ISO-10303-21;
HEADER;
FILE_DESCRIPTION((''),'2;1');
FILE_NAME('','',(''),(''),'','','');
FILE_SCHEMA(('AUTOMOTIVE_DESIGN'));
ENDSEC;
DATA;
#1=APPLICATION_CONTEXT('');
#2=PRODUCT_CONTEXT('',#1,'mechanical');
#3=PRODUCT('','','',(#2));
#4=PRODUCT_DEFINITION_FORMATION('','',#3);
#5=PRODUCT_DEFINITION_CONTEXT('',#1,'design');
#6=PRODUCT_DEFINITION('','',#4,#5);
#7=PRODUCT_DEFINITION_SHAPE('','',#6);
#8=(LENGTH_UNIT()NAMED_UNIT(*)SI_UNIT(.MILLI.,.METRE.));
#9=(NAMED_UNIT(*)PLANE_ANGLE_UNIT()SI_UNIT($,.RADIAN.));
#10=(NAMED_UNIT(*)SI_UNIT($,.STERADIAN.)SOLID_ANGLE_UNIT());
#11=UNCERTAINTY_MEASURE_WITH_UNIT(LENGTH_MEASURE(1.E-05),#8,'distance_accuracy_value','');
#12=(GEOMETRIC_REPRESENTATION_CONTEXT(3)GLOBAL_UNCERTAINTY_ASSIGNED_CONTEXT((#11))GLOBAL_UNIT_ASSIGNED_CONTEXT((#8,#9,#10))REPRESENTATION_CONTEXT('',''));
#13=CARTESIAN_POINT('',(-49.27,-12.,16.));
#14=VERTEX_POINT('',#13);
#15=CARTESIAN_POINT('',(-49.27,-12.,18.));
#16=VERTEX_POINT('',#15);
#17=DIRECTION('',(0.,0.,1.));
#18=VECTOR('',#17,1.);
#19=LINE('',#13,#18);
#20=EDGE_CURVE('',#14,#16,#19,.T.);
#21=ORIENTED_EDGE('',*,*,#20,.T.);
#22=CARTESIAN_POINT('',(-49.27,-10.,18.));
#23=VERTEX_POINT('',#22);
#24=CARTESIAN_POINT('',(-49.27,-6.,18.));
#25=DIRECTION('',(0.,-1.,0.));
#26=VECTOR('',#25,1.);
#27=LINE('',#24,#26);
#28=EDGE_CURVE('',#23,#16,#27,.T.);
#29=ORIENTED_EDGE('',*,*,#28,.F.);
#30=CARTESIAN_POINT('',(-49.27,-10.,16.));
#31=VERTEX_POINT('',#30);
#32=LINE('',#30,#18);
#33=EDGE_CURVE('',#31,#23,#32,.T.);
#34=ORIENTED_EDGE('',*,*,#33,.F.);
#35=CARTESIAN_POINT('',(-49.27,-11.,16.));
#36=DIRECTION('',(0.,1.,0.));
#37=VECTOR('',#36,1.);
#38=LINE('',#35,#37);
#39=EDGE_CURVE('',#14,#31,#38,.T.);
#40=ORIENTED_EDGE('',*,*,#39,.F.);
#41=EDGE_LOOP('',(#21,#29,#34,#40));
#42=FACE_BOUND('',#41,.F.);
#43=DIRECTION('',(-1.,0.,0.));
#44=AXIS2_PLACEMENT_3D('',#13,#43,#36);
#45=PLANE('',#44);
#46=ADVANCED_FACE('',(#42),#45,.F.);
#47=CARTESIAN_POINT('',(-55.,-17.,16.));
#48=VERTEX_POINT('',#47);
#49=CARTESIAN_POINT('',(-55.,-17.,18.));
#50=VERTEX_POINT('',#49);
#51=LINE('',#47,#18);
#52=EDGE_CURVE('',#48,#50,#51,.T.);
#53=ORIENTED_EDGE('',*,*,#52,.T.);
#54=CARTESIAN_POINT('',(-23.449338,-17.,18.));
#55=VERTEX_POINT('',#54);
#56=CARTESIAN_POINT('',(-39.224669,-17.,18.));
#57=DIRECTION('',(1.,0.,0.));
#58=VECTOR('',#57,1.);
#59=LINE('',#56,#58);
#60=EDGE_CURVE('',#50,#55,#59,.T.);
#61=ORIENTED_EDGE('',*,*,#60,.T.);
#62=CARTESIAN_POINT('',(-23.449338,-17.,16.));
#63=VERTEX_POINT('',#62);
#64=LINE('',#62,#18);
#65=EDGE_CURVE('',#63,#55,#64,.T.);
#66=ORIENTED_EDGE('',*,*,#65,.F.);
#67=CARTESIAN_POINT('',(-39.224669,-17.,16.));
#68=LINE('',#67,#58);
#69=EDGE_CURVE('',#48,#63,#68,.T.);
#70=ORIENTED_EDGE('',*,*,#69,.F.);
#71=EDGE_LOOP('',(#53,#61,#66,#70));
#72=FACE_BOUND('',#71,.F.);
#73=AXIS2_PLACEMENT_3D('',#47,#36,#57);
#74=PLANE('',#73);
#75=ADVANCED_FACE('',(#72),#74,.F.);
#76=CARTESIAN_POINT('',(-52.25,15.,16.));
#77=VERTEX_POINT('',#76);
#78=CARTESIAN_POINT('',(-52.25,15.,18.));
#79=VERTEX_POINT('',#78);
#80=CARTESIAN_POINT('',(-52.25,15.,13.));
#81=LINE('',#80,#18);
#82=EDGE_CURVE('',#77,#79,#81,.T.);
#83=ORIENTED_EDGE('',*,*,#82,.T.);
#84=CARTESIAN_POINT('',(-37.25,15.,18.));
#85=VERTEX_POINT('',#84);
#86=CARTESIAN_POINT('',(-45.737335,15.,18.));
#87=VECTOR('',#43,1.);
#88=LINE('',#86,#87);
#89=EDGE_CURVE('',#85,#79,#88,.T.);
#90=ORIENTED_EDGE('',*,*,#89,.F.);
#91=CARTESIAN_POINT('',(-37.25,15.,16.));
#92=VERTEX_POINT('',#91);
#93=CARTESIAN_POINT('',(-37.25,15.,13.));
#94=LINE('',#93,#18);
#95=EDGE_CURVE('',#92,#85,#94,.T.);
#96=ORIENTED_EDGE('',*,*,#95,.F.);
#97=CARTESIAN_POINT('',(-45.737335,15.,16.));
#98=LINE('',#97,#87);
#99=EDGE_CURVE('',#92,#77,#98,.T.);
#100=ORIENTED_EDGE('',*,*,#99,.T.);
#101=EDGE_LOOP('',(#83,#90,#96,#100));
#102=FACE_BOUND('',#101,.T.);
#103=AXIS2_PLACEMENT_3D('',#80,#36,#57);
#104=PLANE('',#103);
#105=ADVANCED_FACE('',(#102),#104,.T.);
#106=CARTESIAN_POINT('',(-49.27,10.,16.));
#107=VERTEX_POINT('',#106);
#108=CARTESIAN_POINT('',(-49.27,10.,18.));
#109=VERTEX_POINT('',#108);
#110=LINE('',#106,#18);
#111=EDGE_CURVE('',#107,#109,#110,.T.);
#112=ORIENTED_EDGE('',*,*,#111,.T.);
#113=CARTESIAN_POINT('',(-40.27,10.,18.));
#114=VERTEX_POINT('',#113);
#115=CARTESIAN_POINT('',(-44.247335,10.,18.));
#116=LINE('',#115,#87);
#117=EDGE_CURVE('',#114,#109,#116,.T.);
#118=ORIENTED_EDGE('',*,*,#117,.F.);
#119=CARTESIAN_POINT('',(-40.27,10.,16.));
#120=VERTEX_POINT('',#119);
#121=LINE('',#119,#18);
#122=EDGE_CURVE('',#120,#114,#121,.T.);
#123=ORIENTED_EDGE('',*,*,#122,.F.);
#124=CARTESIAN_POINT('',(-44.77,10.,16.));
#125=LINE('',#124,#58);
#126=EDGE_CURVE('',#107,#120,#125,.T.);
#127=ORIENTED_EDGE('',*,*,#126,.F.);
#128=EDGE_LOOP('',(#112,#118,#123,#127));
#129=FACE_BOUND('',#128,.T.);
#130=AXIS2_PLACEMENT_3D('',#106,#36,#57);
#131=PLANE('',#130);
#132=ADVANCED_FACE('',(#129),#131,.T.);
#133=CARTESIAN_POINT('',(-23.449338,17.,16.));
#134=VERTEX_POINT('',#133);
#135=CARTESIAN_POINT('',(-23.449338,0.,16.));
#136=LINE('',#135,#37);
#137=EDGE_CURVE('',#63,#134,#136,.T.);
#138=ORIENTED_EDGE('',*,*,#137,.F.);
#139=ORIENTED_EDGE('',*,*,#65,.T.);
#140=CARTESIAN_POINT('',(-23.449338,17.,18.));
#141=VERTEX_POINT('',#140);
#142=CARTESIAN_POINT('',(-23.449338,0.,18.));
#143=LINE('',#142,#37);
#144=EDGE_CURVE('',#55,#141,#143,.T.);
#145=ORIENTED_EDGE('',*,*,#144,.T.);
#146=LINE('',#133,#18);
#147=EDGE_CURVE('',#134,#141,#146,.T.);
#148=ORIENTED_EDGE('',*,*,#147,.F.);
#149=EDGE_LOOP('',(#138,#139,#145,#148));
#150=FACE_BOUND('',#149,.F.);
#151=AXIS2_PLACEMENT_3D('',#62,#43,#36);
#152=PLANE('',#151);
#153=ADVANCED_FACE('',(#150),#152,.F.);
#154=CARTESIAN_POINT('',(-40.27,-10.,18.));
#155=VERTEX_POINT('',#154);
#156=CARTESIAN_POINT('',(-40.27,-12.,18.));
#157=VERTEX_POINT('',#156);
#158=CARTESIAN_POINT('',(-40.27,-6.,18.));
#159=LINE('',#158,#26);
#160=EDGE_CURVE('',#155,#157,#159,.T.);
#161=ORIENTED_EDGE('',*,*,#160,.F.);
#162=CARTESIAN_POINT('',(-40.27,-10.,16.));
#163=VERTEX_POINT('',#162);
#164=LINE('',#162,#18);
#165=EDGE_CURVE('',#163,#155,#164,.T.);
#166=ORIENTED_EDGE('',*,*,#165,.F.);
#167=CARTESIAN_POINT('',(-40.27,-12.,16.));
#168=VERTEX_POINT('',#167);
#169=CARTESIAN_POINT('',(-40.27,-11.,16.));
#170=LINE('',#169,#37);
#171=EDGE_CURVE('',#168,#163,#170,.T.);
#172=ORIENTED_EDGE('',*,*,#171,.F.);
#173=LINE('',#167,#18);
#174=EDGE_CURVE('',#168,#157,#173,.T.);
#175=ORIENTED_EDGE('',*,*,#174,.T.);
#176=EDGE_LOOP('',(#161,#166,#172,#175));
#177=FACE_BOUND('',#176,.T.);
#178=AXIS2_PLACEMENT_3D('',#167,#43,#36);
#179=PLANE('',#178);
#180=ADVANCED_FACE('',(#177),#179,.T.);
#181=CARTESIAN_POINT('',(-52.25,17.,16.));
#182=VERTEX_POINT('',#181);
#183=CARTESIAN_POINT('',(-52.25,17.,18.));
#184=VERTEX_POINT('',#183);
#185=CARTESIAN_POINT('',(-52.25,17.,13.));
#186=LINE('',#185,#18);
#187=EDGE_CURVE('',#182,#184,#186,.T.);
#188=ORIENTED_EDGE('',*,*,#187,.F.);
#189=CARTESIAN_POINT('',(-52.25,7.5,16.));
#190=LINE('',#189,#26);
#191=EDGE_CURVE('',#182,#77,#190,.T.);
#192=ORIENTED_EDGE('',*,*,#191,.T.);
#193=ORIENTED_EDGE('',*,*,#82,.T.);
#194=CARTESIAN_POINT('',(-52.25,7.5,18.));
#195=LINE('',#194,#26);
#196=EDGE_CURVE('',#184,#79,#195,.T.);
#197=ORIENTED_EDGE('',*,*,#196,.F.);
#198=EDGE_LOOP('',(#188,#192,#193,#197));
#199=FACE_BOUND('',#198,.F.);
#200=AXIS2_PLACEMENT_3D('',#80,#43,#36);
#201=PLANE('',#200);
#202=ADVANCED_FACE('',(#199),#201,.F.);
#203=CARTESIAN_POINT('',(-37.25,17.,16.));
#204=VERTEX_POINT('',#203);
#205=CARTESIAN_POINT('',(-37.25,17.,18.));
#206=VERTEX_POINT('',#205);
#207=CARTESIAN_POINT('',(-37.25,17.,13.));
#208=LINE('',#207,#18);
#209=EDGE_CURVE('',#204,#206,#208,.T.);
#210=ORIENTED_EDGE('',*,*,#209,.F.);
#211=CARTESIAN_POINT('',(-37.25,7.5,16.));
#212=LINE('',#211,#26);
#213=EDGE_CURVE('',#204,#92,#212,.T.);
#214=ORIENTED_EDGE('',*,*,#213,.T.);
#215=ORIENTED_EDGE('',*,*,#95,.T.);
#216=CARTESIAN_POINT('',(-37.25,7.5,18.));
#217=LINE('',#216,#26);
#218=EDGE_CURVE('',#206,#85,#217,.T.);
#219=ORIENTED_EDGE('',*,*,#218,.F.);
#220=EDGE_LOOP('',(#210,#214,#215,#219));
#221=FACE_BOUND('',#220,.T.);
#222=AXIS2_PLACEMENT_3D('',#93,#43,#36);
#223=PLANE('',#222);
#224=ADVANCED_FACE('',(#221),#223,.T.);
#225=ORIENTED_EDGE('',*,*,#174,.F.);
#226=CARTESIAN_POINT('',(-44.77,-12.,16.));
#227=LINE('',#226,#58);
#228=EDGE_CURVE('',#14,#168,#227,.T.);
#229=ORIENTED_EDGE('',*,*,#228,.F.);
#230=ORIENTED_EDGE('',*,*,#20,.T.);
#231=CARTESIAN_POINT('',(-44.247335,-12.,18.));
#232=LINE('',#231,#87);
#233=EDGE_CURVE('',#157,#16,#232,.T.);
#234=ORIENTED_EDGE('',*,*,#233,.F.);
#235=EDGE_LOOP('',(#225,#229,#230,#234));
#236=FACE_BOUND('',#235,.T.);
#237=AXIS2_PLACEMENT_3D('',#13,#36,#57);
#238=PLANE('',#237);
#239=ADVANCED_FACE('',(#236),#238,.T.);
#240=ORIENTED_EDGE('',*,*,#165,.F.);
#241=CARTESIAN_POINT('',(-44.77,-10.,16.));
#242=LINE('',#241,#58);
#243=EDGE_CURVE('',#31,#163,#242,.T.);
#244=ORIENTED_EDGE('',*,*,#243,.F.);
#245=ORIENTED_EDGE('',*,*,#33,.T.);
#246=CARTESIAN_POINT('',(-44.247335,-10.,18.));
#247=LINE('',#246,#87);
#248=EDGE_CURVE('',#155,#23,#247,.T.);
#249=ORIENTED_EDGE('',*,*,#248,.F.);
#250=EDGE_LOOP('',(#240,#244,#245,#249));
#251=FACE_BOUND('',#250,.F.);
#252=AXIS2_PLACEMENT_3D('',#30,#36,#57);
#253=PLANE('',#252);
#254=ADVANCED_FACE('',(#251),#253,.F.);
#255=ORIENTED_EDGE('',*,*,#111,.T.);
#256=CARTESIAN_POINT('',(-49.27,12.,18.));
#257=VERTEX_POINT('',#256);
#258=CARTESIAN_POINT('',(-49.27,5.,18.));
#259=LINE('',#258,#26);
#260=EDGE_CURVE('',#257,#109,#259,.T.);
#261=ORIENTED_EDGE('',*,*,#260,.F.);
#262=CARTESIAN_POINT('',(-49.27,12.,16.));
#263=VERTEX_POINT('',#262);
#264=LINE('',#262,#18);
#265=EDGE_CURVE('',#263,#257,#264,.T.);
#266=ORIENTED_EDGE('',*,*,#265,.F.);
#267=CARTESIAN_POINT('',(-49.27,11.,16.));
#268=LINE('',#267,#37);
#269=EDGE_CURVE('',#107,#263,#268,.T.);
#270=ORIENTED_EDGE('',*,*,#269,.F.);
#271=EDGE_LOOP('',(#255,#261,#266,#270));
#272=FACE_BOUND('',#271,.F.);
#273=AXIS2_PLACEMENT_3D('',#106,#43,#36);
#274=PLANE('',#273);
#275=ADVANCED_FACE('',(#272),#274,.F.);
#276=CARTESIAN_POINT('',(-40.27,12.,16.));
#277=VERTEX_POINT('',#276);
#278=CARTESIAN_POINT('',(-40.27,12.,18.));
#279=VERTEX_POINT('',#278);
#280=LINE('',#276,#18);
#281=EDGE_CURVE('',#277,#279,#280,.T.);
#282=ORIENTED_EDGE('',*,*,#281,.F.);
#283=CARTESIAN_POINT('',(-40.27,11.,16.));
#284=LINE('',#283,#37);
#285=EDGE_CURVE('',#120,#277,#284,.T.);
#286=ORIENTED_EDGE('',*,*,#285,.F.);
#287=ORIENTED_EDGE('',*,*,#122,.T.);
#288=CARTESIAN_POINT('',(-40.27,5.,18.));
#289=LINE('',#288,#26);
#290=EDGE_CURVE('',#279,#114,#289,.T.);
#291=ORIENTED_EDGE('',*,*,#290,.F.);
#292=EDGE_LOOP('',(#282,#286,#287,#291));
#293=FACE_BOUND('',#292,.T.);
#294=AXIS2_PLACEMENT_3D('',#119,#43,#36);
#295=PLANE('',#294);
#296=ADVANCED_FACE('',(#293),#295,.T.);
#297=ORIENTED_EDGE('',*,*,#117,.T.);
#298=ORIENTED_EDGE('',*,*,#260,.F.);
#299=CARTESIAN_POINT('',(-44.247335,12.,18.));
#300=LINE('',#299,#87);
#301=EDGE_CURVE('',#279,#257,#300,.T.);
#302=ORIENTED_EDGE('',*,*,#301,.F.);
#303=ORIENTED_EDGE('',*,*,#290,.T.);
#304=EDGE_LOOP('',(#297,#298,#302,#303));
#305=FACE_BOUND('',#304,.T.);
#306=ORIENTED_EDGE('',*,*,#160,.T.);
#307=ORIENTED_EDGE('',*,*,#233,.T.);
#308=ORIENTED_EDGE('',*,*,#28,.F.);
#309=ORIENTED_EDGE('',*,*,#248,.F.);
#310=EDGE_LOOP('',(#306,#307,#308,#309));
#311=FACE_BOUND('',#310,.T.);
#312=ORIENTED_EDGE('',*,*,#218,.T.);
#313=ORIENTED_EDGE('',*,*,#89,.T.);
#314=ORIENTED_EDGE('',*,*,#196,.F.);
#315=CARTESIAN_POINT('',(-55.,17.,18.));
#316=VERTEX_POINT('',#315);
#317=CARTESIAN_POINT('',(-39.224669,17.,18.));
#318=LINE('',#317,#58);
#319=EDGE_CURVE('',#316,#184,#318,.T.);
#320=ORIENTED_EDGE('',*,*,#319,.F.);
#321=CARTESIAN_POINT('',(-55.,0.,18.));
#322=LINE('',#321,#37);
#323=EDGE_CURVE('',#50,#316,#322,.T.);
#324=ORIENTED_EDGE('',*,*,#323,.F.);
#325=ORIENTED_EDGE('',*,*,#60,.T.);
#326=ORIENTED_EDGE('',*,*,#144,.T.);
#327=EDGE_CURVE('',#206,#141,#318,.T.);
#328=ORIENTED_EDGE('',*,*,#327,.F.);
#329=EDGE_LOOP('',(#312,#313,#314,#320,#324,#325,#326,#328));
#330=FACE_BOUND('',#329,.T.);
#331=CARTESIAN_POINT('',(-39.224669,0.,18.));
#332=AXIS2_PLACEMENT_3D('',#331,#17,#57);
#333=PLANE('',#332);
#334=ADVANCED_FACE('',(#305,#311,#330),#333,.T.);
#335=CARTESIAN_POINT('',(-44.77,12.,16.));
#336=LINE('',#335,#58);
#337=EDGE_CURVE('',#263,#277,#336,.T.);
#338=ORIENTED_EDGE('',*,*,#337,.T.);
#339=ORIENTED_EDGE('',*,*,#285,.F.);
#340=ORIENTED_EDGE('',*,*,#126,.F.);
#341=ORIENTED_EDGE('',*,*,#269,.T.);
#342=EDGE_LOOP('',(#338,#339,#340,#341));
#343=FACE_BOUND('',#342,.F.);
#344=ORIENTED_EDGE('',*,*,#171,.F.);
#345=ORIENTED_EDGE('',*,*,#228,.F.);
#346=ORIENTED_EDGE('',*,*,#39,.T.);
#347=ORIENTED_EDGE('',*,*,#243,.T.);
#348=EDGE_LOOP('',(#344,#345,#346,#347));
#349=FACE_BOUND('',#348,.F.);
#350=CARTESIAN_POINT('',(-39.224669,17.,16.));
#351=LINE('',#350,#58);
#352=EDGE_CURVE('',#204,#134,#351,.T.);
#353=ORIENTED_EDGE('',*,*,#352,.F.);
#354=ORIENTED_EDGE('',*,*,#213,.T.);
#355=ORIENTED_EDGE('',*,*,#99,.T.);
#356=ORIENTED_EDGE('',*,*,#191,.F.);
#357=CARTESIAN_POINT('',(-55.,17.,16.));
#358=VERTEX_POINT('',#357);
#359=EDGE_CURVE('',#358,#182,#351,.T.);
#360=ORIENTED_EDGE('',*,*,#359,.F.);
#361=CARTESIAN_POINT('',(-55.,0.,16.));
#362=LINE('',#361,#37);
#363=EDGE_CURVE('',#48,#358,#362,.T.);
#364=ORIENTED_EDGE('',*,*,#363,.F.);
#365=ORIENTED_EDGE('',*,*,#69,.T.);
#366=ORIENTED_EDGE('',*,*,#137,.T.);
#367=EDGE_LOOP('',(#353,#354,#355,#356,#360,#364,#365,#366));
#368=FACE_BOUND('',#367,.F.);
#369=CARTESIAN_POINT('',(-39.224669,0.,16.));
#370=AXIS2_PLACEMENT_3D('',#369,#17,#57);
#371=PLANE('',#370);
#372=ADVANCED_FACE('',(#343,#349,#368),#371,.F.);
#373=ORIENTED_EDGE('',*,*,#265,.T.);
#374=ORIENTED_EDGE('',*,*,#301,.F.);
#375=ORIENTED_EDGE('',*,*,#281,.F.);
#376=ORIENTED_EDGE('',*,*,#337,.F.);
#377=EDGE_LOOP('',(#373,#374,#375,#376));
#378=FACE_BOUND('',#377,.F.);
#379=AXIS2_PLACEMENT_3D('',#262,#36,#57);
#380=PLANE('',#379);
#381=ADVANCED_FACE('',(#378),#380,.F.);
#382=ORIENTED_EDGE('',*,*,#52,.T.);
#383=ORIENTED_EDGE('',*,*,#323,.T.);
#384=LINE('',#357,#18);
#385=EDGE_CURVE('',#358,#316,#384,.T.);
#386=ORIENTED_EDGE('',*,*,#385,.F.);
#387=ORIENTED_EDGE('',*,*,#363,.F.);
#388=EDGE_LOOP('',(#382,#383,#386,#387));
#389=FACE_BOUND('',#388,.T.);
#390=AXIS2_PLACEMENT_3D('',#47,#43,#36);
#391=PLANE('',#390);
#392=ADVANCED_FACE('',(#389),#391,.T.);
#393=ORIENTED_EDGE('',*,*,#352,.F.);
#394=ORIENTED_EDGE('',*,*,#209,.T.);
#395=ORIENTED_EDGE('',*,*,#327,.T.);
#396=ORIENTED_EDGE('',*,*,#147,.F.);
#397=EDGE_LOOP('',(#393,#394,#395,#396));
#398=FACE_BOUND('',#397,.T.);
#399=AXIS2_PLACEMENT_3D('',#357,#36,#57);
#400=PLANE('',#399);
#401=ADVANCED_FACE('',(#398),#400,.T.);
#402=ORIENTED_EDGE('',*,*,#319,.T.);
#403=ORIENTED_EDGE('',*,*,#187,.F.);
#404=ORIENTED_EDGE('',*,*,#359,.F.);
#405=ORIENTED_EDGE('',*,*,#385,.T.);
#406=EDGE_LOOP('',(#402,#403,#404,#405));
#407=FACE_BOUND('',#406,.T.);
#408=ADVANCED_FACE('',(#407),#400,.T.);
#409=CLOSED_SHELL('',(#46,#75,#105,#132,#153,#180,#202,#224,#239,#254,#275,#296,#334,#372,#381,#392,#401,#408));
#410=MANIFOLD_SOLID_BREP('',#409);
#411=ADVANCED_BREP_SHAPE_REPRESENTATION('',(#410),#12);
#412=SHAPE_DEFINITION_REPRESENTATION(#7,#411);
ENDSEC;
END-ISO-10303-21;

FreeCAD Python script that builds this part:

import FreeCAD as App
import Part
import Sketcher

V = App.Vector
Q = App.Units.Quantity

doc = App.newDocument("Part")
body = doc.addObject("PartDesign::Body", "Body")

# Sketch on XY plane
sketch1 = body.newObject("Sketcher::SketchObject", "Sketch")
sketch1.AttachmentSupport = (doc.getObject("XY_Plane"), [""])
sketch1.MapMode = "FlatFace"
sketch1.AttachmentOffset = App.Placement(V(0, 0, 23), App.Rotation())
sketch1.addGeometry([
    Part.LineSegment(V(-52.2, 17, 0), V(-52.2, 15, 0)),
    Part.LineSegment(V(-52.2, 15, 0), V(-37.2, 15, 0)),
    Part.LineSegment(V(-37.2, 15, 0), V(-37.2, 17, 0)),
    Part.LineSegment(V(-37.2, 17, 0), V(-52.2, 17, 0)),
], False)
sketch1.addConstraint([
    Sketcher.Constraint("Coincident", 0, 2, 1, 1),
    Sketcher.Constraint("Coincident", 1, 2, 2, 1),
    Sketcher.Constraint("Coincident", 2, 2, 3, 1),
    Sketcher.Constraint("Coincident", 3, 2, 0, 1),
    Sketcher.Constraint("Vertical", 0),
    Sketcher.Constraint("Horizontal", 1),
    Sketcher.Constraint("Vertical", 2),
    Sketcher.Constraint("Horizontal", 3),
    Sketcher.Constraint("DistanceX", 1, 1, 1, 2, Q("15 mm")),
    Sketcher.Constraint("DistanceY", 0, 2, 0, 1, Q("2 mm")),
    Sketcher.Constraint("DistanceY", -1, 1, 0, 2, Q("15 mm")),
    Sketcher.Constraint("DistanceX", 0, 2, -1, 1, Q("52.25 mm")),
])
pad1 = body.newObject("PartDesign::Pad", "Pad")
pad1.Profile = sketch1
pad1.Length = 10
body2 = doc.addObject("PartDesign::Body", "Body001")
doc.recompute()

body.Placement = App.Placement(V(0, 0, -10), App.Rotation(V(0, 0, 1), 0))
boolean = body2.newObject("PartDesign::Boolean", "Boolean")
boolean.Type = "Fuse"
boolean.addObjects([body])
body3 = doc.addObject("PartDesign::Body", "Body002")
body3.AllowCompound = True

# Sketch on XY plane
sketch2 = body3.newObject("Sketcher::SketchObject", "Sketch001")
sketch2.AttachmentSupport = (doc.getObject("XY_Plane002"), [""])
sketch2.MapMode = "FlatFace"
sketch2.AttachmentOffset = App.Placement(V(0, 0, 26), App.Rotation())
sketch2.addGeometry([
    Part.LineSegment(V(-49.3, 12, 0), V(-49.3, 10, 0)),  # 0
    Part.LineSegment(V(-49.3, 10, 0), V(-40.3, 10, 0)),  # 1
    Part.LineSegment(V(-40.3, 10, 0), V(-40.3, 12, 0)),  # 2
    Part.LineSegment(V(-40.3, 12, 0), V(-49.3, 12, 0)),  # 3
    Part.LineSegment(V(-49.3, -10, 0), V(-49.3, -12, 0)),  # 4
    Part.LineSegment(V(-49.3, -12, 0), V(-40.3, -12, 0)),  # 5
    Part.LineSegment(V(-40.3, -12, 0), V(-40.3, -10, 0)),  # 6
    Part.LineSegment(V(-40.3, -10, 0), V(-49.3, -10, 0)),  # 7
], False)
sketch2.addConstraint([
    Sketcher.Constraint("Coincident", 0, 2, 1, 1),
    Sketcher.Constraint("Coincident", 1, 2, 2, 1),
    Sketcher.Constraint("Coincident", 2, 2, 3, 1),
    Sketcher.Constraint("Coincident", 3, 2, 0, 1),
    Sketcher.Constraint("Coincident", 4, 2, 5, 1),
    Sketcher.Constraint("Coincident", 5, 2, 6, 1),
    Sketcher.Constraint("Coincident", 6, 2, 7, 1),
    Sketcher.Constraint("Coincident", 7, 2, 4, 1),
    Sketcher.Constraint("Vertical", 0),
    Sketcher.Constraint("Horizontal", 1),
    Sketcher.Constraint("Vertical", 2),
    Sketcher.Constraint("Horizontal", 3),
    Sketcher.Constraint("Vertical", 4),
    Sketcher.Constraint("Horizontal", 5),
    Sketcher.Constraint("Vertical", 6),
    Sketcher.Constraint("Horizontal", 7),
    Sketcher.Constraint("Symmetric", 3, 2, 4, 2, -1),
    Sketcher.Constraint("Symmetric", 1, 2, 6, 2, -1),
    Sketcher.Constraint("DistanceX", 1, 1, 1, 2, Q("9 mm")),
    Sketcher.Constraint("DistanceY", 0, 2, 0, 1, Q("2 mm")),
    Sketcher.Constraint("DistanceY", -1, 1, 0, 2, Q("10 mm")),
    Sketcher.Constraint("DistanceX", 0, 2, -1, 1, Q("49.27 mm")),
])
pad2 = body3.newObject("PartDesign::Pad", "Pad001")
pad2.Profile = sketch2
pad2.Length = 3
body4 = doc.addObject("PartDesign::Body", "Body003")

# Sketch on XY plane
sketch3 = body4.newObject("Sketcher::SketchObject", "Sketch002")
sketch3.AttachmentSupport = (doc.getObject("XY_Plane003"), [""])
sketch3.MapMode = "FlatFace"
sketch3.AttachmentOffset = App.Placement(V(0, 0, 26), App.Rotation())
sketch3.addGeometry([
    Part.LineSegment(V(-55, 17, 0), V(-55, -17, 0)),
    Part.LineSegment(V(-55, -17, 0), V(-23, -17, 0)),
    Part.LineSegment(V(-23, -17, 0), V(-23, 17, 0)),
    Part.LineSegment(V(-23, 17, 0), V(-55, 17, 0)),
], False)
sketch3.addConstraint([
    Sketcher.Constraint("Coincident", 0, 2, 1, 1),
    Sketcher.Constraint("Coincident", 1, 2, 2, 1),
    Sketcher.Constraint("Coincident", 2, 2, 3, 1),
    Sketcher.Constraint("Coincident", 3, 2, 0, 1),
    Sketcher.Constraint("Vertical", 0),
    Sketcher.Constraint("Horizontal", 1),
    Sketcher.Constraint("Vertical", 2),
    Sketcher.Constraint("Horizontal", 3),
    Sketcher.Constraint("DistanceY", 0, 2, 0, 1, Q("34 mm")),
    Sketcher.Constraint("DistanceX", 0, 2, -1, 1, Q("55 mm")),
    Sketcher.Constraint("DistanceY", 0, 2, -1, 1, Q("17 mm")),
    Sketcher.Constraint("DistanceX", 1, 1, 1, 2, Q("31.550661 mm")),
])
pad3 = body4.newObject("PartDesign::Pad", "Pad002")
pad3.Profile = sketch3
pad3.Length = 2
doc.recompute()

boolean2 = body4.newObject("PartDesign::Boolean", "Boolean001")
boolean2.Type = "Cut"
boolean2.addObjects([body3])
body5 = doc.addObject("PartDesign::Body", "Body004")
doc.recompute()

body4.Placement = App.Placement(V(0, 0, -10), App.Rotation(V(0, 0, 1), 0))
boolean3 = body5.newObject("PartDesign::Boolean", "Boolean002")
boolean3.Type = "Fuse"
boolean3.addObjects([body4])
doc.recompute()

boolean4 = body5.newObject("PartDesign::Boolean", "Boolean003")
boolean4.Type = "Cut"
boolean4.addObjects([body2])

doc.recompute()
